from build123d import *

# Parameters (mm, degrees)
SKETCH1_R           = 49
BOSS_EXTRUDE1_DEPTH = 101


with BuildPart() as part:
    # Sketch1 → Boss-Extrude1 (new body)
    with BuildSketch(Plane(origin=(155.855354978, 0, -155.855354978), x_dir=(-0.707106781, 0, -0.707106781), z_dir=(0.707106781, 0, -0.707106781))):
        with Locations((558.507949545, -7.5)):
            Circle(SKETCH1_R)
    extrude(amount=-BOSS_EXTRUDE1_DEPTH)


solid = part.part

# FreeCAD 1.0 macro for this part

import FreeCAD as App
import Part
import Sketcher
Q = App.Units.Quantity

doc = App.newDocument("Part")
body = doc.addObject("PartDesign::Body", "Body")

sketch1 = body.newObject("Sketcher::SketchObject", "Sketch")
sketch1.Placement = App.Placement(App.Vector(155.855355, 0, -155.855355), App.Rotation(App.Vector(-0.707106781, 0, -0.707106781), App.Vector(0, 0.999999999, 0), App.Vector(0.707106781, 0, -0.707106781), "ZXY"))
sketch1.addGeometry(Part.Circle(App.Vector(559, -7, 0), App.Vector(0, 0, 1), 49), False)
sketch1.addConstraint([
    Sketcher.Constraint("Diameter", 0, Q("98 mm")),
    Sketcher.Constraint("DistanceY", 0, 3, -1, 1, Q("7.5 mm")),
    Sketcher.Constraint("DistanceX", -1, 1, 0, 3, Q("558.507949 mm")),
])
pad1 = body.newObject("PartDesign::Pad", "Pad")
pad1.Profile = sketch1
pad1.Length = 101
pad1.Reversed = True

doc.recompute()
